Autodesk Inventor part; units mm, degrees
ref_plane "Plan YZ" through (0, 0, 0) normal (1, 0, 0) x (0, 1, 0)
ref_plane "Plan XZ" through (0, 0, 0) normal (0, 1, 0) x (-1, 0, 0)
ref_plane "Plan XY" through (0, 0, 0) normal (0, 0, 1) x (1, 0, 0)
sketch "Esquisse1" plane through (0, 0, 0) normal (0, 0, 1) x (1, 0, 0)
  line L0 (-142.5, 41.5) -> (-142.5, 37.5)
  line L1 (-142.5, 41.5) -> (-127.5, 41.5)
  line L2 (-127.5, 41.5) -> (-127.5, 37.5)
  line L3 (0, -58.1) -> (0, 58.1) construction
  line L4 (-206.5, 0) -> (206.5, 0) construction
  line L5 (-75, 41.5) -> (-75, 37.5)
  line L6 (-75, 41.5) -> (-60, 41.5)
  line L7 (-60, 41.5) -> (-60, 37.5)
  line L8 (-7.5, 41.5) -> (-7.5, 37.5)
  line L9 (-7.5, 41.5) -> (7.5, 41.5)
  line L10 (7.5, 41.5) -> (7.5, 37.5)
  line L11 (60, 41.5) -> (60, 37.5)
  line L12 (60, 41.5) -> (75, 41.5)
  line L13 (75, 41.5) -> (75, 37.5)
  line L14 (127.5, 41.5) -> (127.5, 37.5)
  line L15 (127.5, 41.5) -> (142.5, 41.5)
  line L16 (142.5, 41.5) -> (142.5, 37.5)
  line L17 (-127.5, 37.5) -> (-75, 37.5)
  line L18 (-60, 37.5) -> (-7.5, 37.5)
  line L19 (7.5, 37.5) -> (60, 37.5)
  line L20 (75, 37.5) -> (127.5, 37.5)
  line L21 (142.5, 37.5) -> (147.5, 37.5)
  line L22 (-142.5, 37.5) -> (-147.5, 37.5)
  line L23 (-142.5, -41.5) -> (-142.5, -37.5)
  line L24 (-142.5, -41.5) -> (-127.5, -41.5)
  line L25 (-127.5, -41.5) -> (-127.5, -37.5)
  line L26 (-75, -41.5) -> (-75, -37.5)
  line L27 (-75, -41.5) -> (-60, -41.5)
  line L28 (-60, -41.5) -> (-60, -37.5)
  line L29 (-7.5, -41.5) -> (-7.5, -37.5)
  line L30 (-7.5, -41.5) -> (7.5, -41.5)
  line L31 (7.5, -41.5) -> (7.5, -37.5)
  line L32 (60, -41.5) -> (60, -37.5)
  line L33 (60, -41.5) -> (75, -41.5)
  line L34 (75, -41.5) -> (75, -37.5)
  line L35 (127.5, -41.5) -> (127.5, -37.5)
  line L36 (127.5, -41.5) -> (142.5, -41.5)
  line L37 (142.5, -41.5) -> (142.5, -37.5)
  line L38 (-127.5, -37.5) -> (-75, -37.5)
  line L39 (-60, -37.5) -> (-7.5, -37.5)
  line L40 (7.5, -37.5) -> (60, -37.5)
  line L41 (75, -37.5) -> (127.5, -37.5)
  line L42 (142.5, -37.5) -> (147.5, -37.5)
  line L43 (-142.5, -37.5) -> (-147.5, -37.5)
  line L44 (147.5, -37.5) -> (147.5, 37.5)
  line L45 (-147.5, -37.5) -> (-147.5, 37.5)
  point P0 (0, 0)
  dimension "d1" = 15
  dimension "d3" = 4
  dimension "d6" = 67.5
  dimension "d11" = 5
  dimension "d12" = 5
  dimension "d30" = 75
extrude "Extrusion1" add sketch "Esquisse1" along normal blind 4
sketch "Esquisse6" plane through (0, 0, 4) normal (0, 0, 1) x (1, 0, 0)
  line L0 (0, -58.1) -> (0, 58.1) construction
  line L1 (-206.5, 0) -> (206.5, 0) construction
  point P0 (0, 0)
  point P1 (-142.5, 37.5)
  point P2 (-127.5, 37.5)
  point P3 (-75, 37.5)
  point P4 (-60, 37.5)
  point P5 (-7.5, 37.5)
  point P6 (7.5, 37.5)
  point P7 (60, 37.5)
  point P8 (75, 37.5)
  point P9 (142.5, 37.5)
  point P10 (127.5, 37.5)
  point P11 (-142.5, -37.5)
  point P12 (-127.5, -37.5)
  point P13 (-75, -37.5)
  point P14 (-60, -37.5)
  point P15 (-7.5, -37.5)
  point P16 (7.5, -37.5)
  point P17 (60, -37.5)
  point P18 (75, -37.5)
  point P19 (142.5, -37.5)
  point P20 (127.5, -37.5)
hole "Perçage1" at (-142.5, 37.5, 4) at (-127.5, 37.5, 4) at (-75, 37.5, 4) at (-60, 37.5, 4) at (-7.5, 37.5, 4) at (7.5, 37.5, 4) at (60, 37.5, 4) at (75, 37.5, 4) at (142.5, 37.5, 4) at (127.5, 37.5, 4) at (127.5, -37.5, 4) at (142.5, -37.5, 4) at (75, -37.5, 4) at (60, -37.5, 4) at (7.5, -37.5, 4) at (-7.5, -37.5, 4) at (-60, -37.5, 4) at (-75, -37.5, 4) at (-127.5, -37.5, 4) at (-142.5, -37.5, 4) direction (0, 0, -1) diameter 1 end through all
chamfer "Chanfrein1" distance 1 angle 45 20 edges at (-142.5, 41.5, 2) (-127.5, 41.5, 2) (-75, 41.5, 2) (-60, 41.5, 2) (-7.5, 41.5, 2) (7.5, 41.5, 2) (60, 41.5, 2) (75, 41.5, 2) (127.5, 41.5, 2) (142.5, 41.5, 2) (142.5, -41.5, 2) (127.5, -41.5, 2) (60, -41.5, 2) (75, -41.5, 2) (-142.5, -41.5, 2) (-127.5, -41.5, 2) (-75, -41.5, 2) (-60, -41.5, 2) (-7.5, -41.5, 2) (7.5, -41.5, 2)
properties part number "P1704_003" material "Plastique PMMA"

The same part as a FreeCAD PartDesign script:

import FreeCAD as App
import Part
import Sketcher

V = App.Vector


def edges_at(feature, points):
    """Names of the edges that pass closest to the given points."""
    edges = feature.Shape.Edges
    near = lambda p: min(range(len(edges)), key=lambda i: edges[i].distToShape(Part.Vertex(*p))[0])
    return sorted({f"Edge{near(p) + 1}" for p in points})

doc = App.newDocument("Part")
body = doc.addObject("PartDesign::Body", "Body")

sketch1 = doc.addObject("Sketcher::SketchObject", "Sketch")
body.addObject(sketch1)
sketch1.AttachmentSupport = (doc.XY_Plane, [""])
sketch1.MapMode = "FlatFace"
sketch1.addGeometry([
    Part.LineSegment(V(-127.5, 41.5, 0), V(-142.5, 41.5, 0)),
    Part.LineSegment(V(-142.5, 41.5, 0), V(-142.5, 37.5, 0)),
    Part.LineSegment(V(-142.5, 37.5, 0), V(-147.5, 37.5, 0)),
    Part.LineSegment(V(-147.5, 37.5, 0), V(-147.5, -37.5, 0)),
    Part.LineSegment(V(-147.5, -37.5, 0), V(-142.5, -37.5, 0)),
    Part.LineSegment(V(-142.5, -37.5, 0), V(-142.5, -41.5, 0)),
    Part.LineSegment(V(-142.5, -41.5, 0), V(-127.5, -41.5, 0)),
    Part.LineSegment(V(-127.5, -41.5, 0), V(-127.5, -37.5, 0)),
    Part.LineSegment(V(-127.5, -37.5, 0), V(-75, -37.5, 0)),
    Part.LineSegment(V(-75, -37.5, 0), V(-75, -41.5, 0)),
    Part.LineSegment(V(-75, -41.5, 0), V(-60, -41.5, 0)),
    Part.LineSegment(V(-60, -41.5, 0), V(-60, -37.5, 0)),
    Part.LineSegment(V(-60, -37.5, 0), V(-7.5, -37.5, 0)),
    Part.LineSegment(V(-7.5, -37.5, 0), V(-7.5, -41.5, 0)),
    Part.LineSegment(V(-7.5, -41.5, 0), V(7.5, -41.5, 0)),
    Part.LineSegment(V(7.5, -41.5, 0), V(7.5, -37.5, 0)),
    Part.LineSegment(V(7.5, -37.5, 0), V(60, -37.5, 0)),
    Part.LineSegment(V(60, -37.5, 0), V(60, -41.5, 0)),
    Part.LineSegment(V(60, -41.5, 0), V(75, -41.5, 0)),
    Part.LineSegment(V(75, -41.5, 0), V(75, -37.5, 0)),
    Part.LineSegment(V(75, -37.5, 0), V(127.5, -37.5, 0)),
    Part.LineSegment(V(127.5, -37.5, 0), V(127.5, -41.5, 0)),
    Part.LineSegment(V(127.5, -41.5, 0), V(142.5, -41.5, 0)),
    Part.LineSegment(V(142.5, -41.5, 0), V(142.5, -37.5, 0)),
    Part.LineSegment(V(142.5, -37.5, 0), V(147.5, -37.5, 0)),
    Part.LineSegment(V(147.5, -37.5, 0), V(147.5, 37.5, 0)),
    Part.LineSegment(V(147.5, 37.5, 0), V(142.5, 37.5, 0)),
    Part.LineSegment(V(142.5, 37.5, 0), V(142.5, 41.5, 0)),
    Part.LineSegment(V(142.5, 41.5, 0), V(127.5, 41.5, 0)),
    Part.LineSegment(V(127.5, 41.5, 0), V(127.5, 37.5, 0)),
    Part.LineSegment(V(127.5, 37.5, 0), V(75, 37.5, 0)),
    Part.LineSegment(V(75, 37.5, 0), V(75, 41.5, 0)),
    Part.LineSegment(V(75, 41.5, 0), V(60, 41.5, 0)),
    Part.LineSegment(V(60, 41.5, 0), V(60, 37.5, 0)),
    Part.LineSegment(V(60, 37.5, 0), V(7.5, 37.5, 0)),
    Part.LineSegment(V(7.5, 37.5, 0), V(7.5, 41.5, 0)),
    Part.LineSegment(V(7.5, 41.5, 0), V(-7.5, 41.5, 0)),
    Part.LineSegment(V(-7.5, 41.5, 0), V(-7.5, 37.5, 0)),
    Part.LineSegment(V(-7.5, 37.5, 0), V(-60, 37.5, 0)),
    Part.LineSegment(V(-60, 37.5, 0), V(-60, 41.5, 0)),
    Part.LineSegment(V(-60, 41.5, 0), V(-75, 41.5, 0)),
    Part.LineSegment(V(-75, 41.5, 0), V(-75, 37.5, 0)),
    Part.LineSegment(V(-75, 37.5, 0), V(-127.5, 37.5, 0)),
    Part.LineSegment(V(-127.5, 37.5, 0), V(-127.5, 41.5, 0)),
], False)
sketch1.addConstraint([
    Sketcher.Constraint("Coincident", 0, 2, 1, 1),
    Sketcher.Constraint("Coincident", 1, 2, 2, 1),
    Sketcher.Constraint("Coincident", 2, 2, 3, 1),
    Sketcher.Constraint("Coincident", 3, 2, 4, 1),
    Sketcher.Constraint("Coincident", 4, 2, 5, 1),
    Sketcher.Constraint("Coincident", 5, 2, 6, 1),
    Sketcher.Constraint("Coincident", 6, 2, 7, 1),
    Sketcher.Constraint("Coincident", 7, 2, 8, 1),
    Sketcher.Constraint("Coincident", 8, 2, 9, 1),
    Sketcher.Constraint("Coincident", 9, 2, 10, 1),
    Sketcher.Constraint("Coincident", 10, 2, 11, 1),
    Sketcher.Constraint("Coincident", 11, 2, 12, 1),
    Sketcher.Constraint("Coincident", 12, 2, 13, 1),
    Sketcher.Constraint("Coincident", 13, 2, 14, 1),
    Sketcher.Constraint("Coincident", 14, 2, 15, 1),
    Sketcher.Constraint("Coincident", 15, 2, 16, 1),
    Sketcher.Constraint("Coincident", 16, 2, 17, 1),
    Sketcher.Constraint("Coincident", 17, 2, 18, 1),
    Sketcher.Constraint("Coincident", 18, 2, 19, 1),
    Sketcher.Constraint("Coincident", 19, 2, 20, 1),
    Sketcher.Constraint("Coincident", 20, 2, 21, 1),
    Sketcher.Constraint("Coincident", 21, 2, 22, 1),
    Sketcher.Constraint("Coincident", 22, 2, 23, 1),
    Sketcher.Constraint("Coincident", 23, 2, 24, 1),
    Sketcher.Constraint("Coincident", 24, 2, 25, 1),
    Sketcher.Constraint("Coincident", 25, 2, 26, 1),
    Sketcher.Constraint("Coincident", 26, 2, 27, 1),
    Sketcher.Constraint("Coincident", 27, 2, 28, 1),
    Sketcher.Constraint("Coincident", 28, 2, 29, 1),
    Sketcher.Constraint("Coincident", 29, 2, 30, 1),
    Sketcher.Constraint("Coincident", 30, 2, 31, 1),
    Sketcher.Constraint("Coincident", 31, 2, 32, 1),
    Sketcher.Constraint("Coincident", 32, 2, 33, 1),
    Sketcher.Constraint("Coincident", 33, 2, 34, 1),
    Sketcher.Constraint("Coincident", 34, 2, 35, 1),
    Sketcher.Constraint("Coincident", 35, 2, 36, 1),
    Sketcher.Constraint("Coincident", 36, 2, 37, 1),
    Sketcher.Constraint("Coincident", 37, 2, 38, 1),
    Sketcher.Constraint("Coincident", 38, 2, 39, 1),
    Sketcher.Constraint("Coincident", 39, 2, 40, 1),
    Sketcher.Constraint("Coincident", 40, 2, 41, 1),
    Sketcher.Constraint("Coincident", 41, 2, 42, 1),
    Sketcher.Constraint("Coincident", 42, 2, 43, 1),
    Sketcher.Constraint("Coincident", 43, 2, 0, 1),
    Sketcher.Constraint("Horizontal", 0),
    Sketcher.Constraint("Vertical", 1),
    Sketcher.Constraint("Horizontal", 2),
    Sketcher.Constraint("Vertical", 3),
    Sketcher.Constraint("Horizontal", 4),
    Sketcher.Constraint("Vertical", 5),
    Sketcher.Constraint("Horizontal", 6),
    Sketcher.Constraint("Vertical", 7),
    Sketcher.Constraint("Horizontal", 8),
    Sketcher.Constraint("Vertical", 9),
    Sketcher.Constraint("Horizontal", 10),
    Sketcher.Constraint("Vertical", 11),
    Sketcher.Constraint("Horizontal", 12),
    Sketcher.Constraint("Vertical", 13),
    Sketcher.Constraint("Horizontal", 14),
    Sketcher.Constraint("Vertical", 15),
    Sketcher.Constraint("Horizontal", 16),
    Sketcher.Constraint("Vertical", 17),
    Sketcher.Constraint("Horizontal", 18),
    Sketcher.Constraint("Vertical", 19),
    Sketcher.Constraint("Horizontal", 20),
    Sketcher.Constraint("Vertical", 21),
    Sketcher.Constraint("Horizontal", 22),
    Sketcher.Constraint("Vertical", 23),
    Sketcher.Constraint("Horizontal", 24),
    Sketcher.Constraint("Vertical", 25),
    Sketcher.Constraint("Horizontal", 26),
    Sketcher.Constraint("Vertical", 27),
    Sketcher.Constraint("Horizontal", 28),
    Sketcher.Constraint("Vertical", 29),
    Sketcher.Constraint("Horizontal", 30),
    Sketcher.Constraint("Vertical", 31),
    Sketcher.Constraint("Horizontal", 32),
    Sketcher.Constraint("Vertical", 33),
    Sketcher.Constraint("Horizontal", 34),
    Sketcher.Constraint("Vertical", 35),
    Sketcher.Constraint("Horizontal", 36),
    Sketcher.Constraint("Vertical", 37),
    Sketcher.Constraint("Horizontal", 38),
    Sketcher.Constraint("Vertical", 39),
    Sketcher.Constraint("Horizontal", 40),
    Sketcher.Constraint("Vertical", 41),
    Sketcher.Constraint("Horizontal", 42),
    Sketcher.Constraint("Vertical", 43),
    Sketcher.Constraint("Symmetric", 0, 2, 22, 2, -1, 1),
    Sketcher.Constraint("Symmetric", 2, 2, 24, 2, -1, 1),
    Sketcher.Constraint("Symmetric", 4, 2, 26, 2, -1, 1),
    Sketcher.Constraint("Symmetric", 6, 2, 28, 2, -1, 1),
    Sketcher.Constraint("Symmetric", 8, 2, 30, 2, -1, 1),
    Sketcher.Constraint("Symmetric", 10, 2, 32, 2, -1, 1),
    Sketcher.Constraint("Symmetric", 12, 2, 34, 2, -1, 1),
    Sketcher.Constraint("Symmetric", 14, 2, 36, 2, -1, 1),
    Sketcher.Constraint("Symmetric", 16, 2, 38, 2, -1, 1),
    Sketcher.Constraint("Symmetric", 18, 2, 40, 2, -1, 1),
    Sketcher.Constraint("Symmetric", 20, 2, 42, 2, -1, 1),
    Sketcher.Constraint("Symmetric", 12, 2, 15, 2, -2),
    Sketcher.Constraint("Symmetric", 10, 2, 17, 2, -2),
    Sketcher.Constraint("Symmetric", 8, 2, 19, 2, -2),
    Sketcher.Constraint("Symmetric", 6, 2, 21, 2, -2),
    Sketcher.Constraint("Symmetric", 4, 2, 23, 2, -2),
    Sketcher.Constraint("Horizontal", 4, 2, 7, 2),
    Sketcher.Constraint("Horizontal", 6, 2, 9, 2),
    Sketcher.Constraint("Horizontal", 8, 2, 11, 2),
    Sketcher.Constraint("Horizontal", 10, 2, 13, 2),
    Sketcher.Constraint("Equal", 6, 10),
    Sketcher.Constraint("Equal", 8, 12),
    Sketcher.Constraint("Equal", 10, 14),
    Sketcher.Constraint("DistanceX", 0, 2, 0, 1, 15.0),
    Sketcher.Constraint("DistanceX", 2, 2, 2, 1, 5.0),
    Sketcher.Constraint("DistanceY", 1, 2, 1, 1, 4.0),
    Sketcher.Constraint("DistanceY", 3, 2, 3, 1, 75.0),
    Sketcher.Constraint("DistanceX", 8, 2, -1, 1, 75.0),
])
pad1 = doc.addObject("PartDesign::Pad", "Pad")
body.addObject(pad1)
pad1.Profile = sketch1
pad1.Length = 4

sketch2 = doc.addObject("Sketcher::SketchObject", "Sketch001")
body.addObject(sketch2)
sketch2.AttachmentSupport = (doc.XY_Plane, [""])
sketch2.MapMode = "FlatFace"
sketch2.AttachmentOffset = App.Placement(V(0, 0, 4), App.Rotation())
sketch2.addGeometry([
    Part.Circle(V(-142.5, 37.5, 0), V(0, 0, 1), 0.5),
    Part.Circle(V(-127.5, 37.5, 0), V(0, 0, 1), 0.5),
    Part.Circle(V(-75, 37.5, 0), V(0, 0, 1), 0.5),
    Part.Circle(V(-60, 37.5, 0), V(0, 0, 1), 0.5),
    Part.Circle(V(-7.5, 37.5, 0), V(0, 0, 1), 0.5),
    Part.Circle(V(7.5, 37.5, 0), V(0, 0, 1), 0.5),
    Part.Circle(V(60, 37.5, 0), V(0, 0, 1), 0.5),
    Part.Circle(V(75, 37.5, 0), V(0, 0, 1), 0.5),
    Part.Circle(V(142.5, 37.5, 0), V(0, 0, 1), 0.5),
    Part.Circle(V(127.5, 37.5, 0), V(0, 0, 1), 0.5),
    Part.Circle(V(127.5, -37.5, 0), V(0, 0, 1), 0.5),
    Part.Circle(V(142.5, -37.5, 0), V(0, 0, 1), 0.5),
    Part.Circle(V(75, -37.5, 0), V(0, 0, 1), 0.5),
    Part.Circle(V(60, -37.5, 0), V(0, 0, 1), 0.5),
    Part.Circle(V(7.5, -37.5, 0), V(0, 0, 1), 0.5),
    Part.Circle(V(-7.5, -37.5, 0), V(0, 0, 1), 0.5),
    Part.Circle(V(-60, -37.5, 0), V(0, 0, 1), 0.5),
    Part.Circle(V(-75, -37.5, 0), V(0, 0, 1), 0.5),
    Part.Circle(V(-127.5, -37.5, 0), V(0, 0, 1), 0.5),
    Part.Circle(V(-142.5, -37.5, 0), V(0, 0, 1), 0.5),
], False)
sketch2.addConstraint([
    Sketcher.Constraint("Equal", 0, 1),
    Sketcher.Constraint("Equal", 1, 2),
    Sketcher.Constraint("Equal", 2, 3),
    Sketcher.Constraint("Equal", 3, 4),
    Sketcher.Constraint("Equal", 4, 5),
    Sketcher.Constraint("Equal", 5, 6),
    Sketcher.Constraint("Equal", 6, 7),
    Sketcher.Constraint("Equal", 7, 8),
    Sketcher.Constraint("Equal", 8, 9),
    Sketcher.Constraint("Equal", 9, 10),
    Sketcher.Constraint("Equal", 10, 11),
    Sketcher.Constraint("Equal", 11, 12),
    Sketcher.Constraint("Equal", 12, 13),
    Sketcher.Constraint("Equal", 13, 14),
    Sketcher.Constraint("Equal", 14, 15),
    Sketcher.Constraint("Equal", 15, 16),
    Sketcher.Constraint("Equal", 16, 17),
    Sketcher.Constraint("Equal", 17, 18),
    Sketcher.Constraint("Equal", 18, 19),
    Sketcher.Constraint("Symmetric", 1, 3, 10, 3, -1, 1),
    Sketcher.Constraint("Symmetric", 0, 3, 11, 3, -1, 1),
    Sketcher.Constraint("Symmetric", 2, 3, 12, 3, -1, 1),
    Sketcher.Constraint("Symmetric", 3, 3, 13, 3, -1, 1),
    Sketcher.Constraint("Symmetric", 4, 3, 14, 3, -1, 1),
    Sketcher.Constraint("Symmetric", 5, 3, 15, 3, -1, 1),
    Sketcher.Constraint("Symmetric", 6, 3, 16, 3, -1, 1),
    Sketcher.Constraint("Symmetric", 7, 3, 17, 3, -1, 1),
    Sketcher.Constraint("Symmetric", 9, 3, 18, 3, -1, 1),
    Sketcher.Constraint("Symmetric", 8, 3, 19, 3, -1, 1),
    Sketcher.Constraint("Symmetric", 4, 3, 5, 3, -2),
    Sketcher.Constraint("Symmetric", 3, 3, 6, 3, -2),
    Sketcher.Constraint("Symmetric", 2, 3, 7, 3, -2),
    Sketcher.Constraint("Symmetric", 0, 3, 8, 3, -2),
    Sketcher.Constraint("Symmetric", 1, 3, 9, 3, -2),
    Sketcher.Constraint("Horizontal", 0, 3, 1, 3),
    Sketcher.Constraint("Horizontal", 1, 3, 2, 3),
    Sketcher.Constraint("Horizontal", 2, 3, 3, 3),
    Sketcher.Constraint("Horizontal", 3, 3, 4, 3),
    Sketcher.Constraint("Diameter", 0, 1.0),
    Sketcher.Constraint("DistanceX", 2, 3, -1, 1, 75.0),
    Sketcher.Constraint("DistanceX", 3, 3, -1, 1, 60.0),
    Sketcher.Constraint("DistanceX", 0, 3, 1, 3, 15.0),
    Sketcher.Constraint("DistanceX", 1, 3, 4, 3, 120.0),
    Sketcher.Constraint("DistanceX", 4, 3, 5, 3, 15.0),
    Sketcher.Constraint("DistanceY", 10, 3, 9, 3, 75.0),
])
doc.recompute()
hole = doc.addObject("PartDesign::Hole", "Hole")
body.addObject(hole)
hole.Profile = sketch2
hole.ThreadType = "None"
hole.Diameter = 1
hole.DepthType = "ThroughAll"
doc.recompute()

chamfer = doc.addObject("PartDesign::Chamfer", "Chamfer")
body.addObject(chamfer)
chamfer.Base = (hole, edges_at(hole, [
    (-142.5, 41.5, 2),
    (-127.5, 41.5, 2),
    (-75, 41.5, 2),
    (-60, 41.5, 2),
    (-7.5, 41.5, 2),
    (7.5, 41.5, 2),
    (60, 41.5, 2),
    (75, 41.5, 2),
    (127.5, 41.5, 2),
    (142.5, 41.5, 2),
    (142.5, -41.5, 2),
    (127.5, -41.5, 2),
    (60, -41.5, 2),
    (75, -41.5, 2),
    (-142.5, -41.5, 2),
    (-127.5, -41.5, 2),
    (-75, -41.5, 2),
    (-60, -41.5, 2),
    (-7.5, -41.5, 2),
    (7.5, -41.5, 2),
]))
chamfer.Size = 1

doc.recompute()
